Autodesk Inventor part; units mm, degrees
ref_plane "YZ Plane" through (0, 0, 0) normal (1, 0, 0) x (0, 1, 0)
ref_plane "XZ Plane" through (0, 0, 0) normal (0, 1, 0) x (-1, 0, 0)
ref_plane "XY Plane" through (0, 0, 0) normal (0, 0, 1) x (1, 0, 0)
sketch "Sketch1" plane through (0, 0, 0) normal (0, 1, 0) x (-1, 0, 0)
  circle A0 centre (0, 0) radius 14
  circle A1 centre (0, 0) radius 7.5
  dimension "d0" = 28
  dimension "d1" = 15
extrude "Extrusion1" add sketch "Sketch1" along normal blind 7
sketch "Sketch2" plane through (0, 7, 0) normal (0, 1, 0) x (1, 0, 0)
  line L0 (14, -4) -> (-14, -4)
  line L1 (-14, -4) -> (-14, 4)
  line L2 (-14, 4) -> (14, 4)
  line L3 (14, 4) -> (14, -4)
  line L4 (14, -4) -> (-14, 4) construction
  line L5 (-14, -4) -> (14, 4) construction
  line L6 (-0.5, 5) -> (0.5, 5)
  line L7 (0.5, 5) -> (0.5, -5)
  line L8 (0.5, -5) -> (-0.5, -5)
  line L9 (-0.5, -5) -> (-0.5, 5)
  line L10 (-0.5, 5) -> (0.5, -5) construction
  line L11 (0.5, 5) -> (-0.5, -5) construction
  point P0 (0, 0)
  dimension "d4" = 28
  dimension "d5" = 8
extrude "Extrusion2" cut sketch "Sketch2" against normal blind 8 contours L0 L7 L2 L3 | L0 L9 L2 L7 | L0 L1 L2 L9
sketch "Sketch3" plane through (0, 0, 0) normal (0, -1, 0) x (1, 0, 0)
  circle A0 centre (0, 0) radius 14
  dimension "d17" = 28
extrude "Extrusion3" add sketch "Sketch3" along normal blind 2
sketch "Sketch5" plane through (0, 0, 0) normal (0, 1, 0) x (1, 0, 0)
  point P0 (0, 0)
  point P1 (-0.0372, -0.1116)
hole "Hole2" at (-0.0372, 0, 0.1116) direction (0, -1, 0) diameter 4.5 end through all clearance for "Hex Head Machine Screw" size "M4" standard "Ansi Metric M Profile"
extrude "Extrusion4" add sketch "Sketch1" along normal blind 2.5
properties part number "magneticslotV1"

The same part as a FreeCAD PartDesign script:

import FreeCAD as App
import Part
import Sketcher


def add_polygon(sketch, points):
    """Adds a closed chain of lines whose ends are joined by coincident constraints."""
    first, n = sketch.GeometryCount, len(points)
    for a, b in zip(points, points[1:] + points[:1]):
        sketch.addGeometry(Part.LineSegment(App.Vector(*a, 0), App.Vector(*b, 0)), False)
    for i in range(n):
        sketch.addConstraint(Sketcher.Constraint("Coincident", first + i, 2, first + (i + 1) % n, 1))

doc = App.newDocument("Part")
body = doc.addObject("PartDesign::Body", "Body")
body.AllowCompound = True

# Sketch on XZ plane
sketch1 = body.newObject("Sketcher::SketchObject", "Sketch")
sketch1.AttachmentSupport = (doc.getObject("XZ_Plane"), [""])
sketch1.MapMode = "FlatFace"
sketch1.addGeometry([
    Part.Circle(App.Vector(0, 0, 0), App.Vector(0, 0, 1), 14),
    Part.Circle(App.Vector(0, 0, 0), App.Vector(0, 0, 1), 8),
], False)
sketch1.addConstraint([
    Sketcher.Constraint("Coincident", 0, 3, -1, 1),
    Sketcher.Constraint("Coincident", 1, 3, -1, 1),
    Sketcher.Constraint("Diameter", 0, 28.0),
    Sketcher.Constraint("Diameter", 1, 15.0),
])
pad1 = body.newObject("PartDesign::Pad", "Pad")
pad1.Profile = sketch1
pad1.Length = 7
pad1.Reversed = True

# Sketch on XZ plane
sketch2 = body.newObject("Sketcher::SketchObject", "Sketch001")
sketch2.AttachmentSupport = (doc.getObject("XZ_Plane"), [""])
sketch2.MapMode = "FlatFace"
sketch2.AttachmentOffset = App.Placement(App.Vector(0, 0, -7), App.Rotation())
add_polygon(sketch2, [(14, 4), (14, -4), (-14, -4), (-14, 4)])  # lines 0-3
sketch2.addConstraint([
    Sketcher.Constraint("Vertical", 0),
    Sketcher.Constraint("Horizontal", 1),
    Sketcher.Constraint("Vertical", 2),
    Sketcher.Constraint("Horizontal", 3),
    Sketcher.Constraint("Symmetric", 0, 2, 2, 2, -1, 1),
    Sketcher.Constraint("DistanceX", 1, 2, 1, 1, 28.0),
    Sketcher.Constraint("DistanceY", 0, 2, 0, 1, 8.0),
])
pocket1 = body.newObject("PartDesign::Pocket", "Pocket")
pocket1.Profile = sketch2
pocket1.Length = 8
pocket1.Reversed = True

# Sketch on XZ plane
sketch3 = body.newObject("Sketcher::SketchObject", "Sketch002")
sketch3.AttachmentSupport = (doc.getObject("XZ_Plane"), [""])
sketch3.MapMode = "FlatFace"
sketch3.addGeometry(Part.Circle(App.Vector(0, 0, 0), App.Vector(0, 0, 1), 14), False)
sketch3.addConstraint([
    Sketcher.Constraint("Coincident", 0, 3, -1, 1),
    Sketcher.Constraint("Diameter", 0, 28.0),
])
pad2 = body.newObject("PartDesign::Pad", "Pad001")
pad2.Profile = sketch3
pad2.Length = 2

# Sketch on XZ plane
sketch4 = body.newObject("Sketcher::SketchObject", "Sketch003")
sketch4.AttachmentSupport = (doc.getObject("XZ_Plane"), [""])
sketch4.MapMode = "FlatFace"
sketch4.addGeometry(Part.Circle(App.Vector(0, 0.1, 0), App.Vector(0, 0, 1), 2.2), False)
sketch4.addConstraint([
    Sketcher.Constraint("Diameter", 0, 4.5),
    Sketcher.Constraint("DistanceX", 0, 3, -1, 1, 0.0372),
    Sketcher.Constraint("DistanceY", -1, 1, 0, 3, 0.1116),
])
doc.recompute()
hole = body.newObject("PartDesign::Hole", "Hole")
hole.Profile = sketch4
hole.ThreadType = "None"
hole.Diameter = 4.5
hole.DepthType = "ThroughAll"
hole.Reversed = True

# Sketch on XZ plane
sketch5 = body.newObject("Sketcher::SketchObject", "Sketch004")
sketch5.AttachmentSupport = (doc.getObject("XZ_Plane"), [""])
sketch5.MapMode = "FlatFace"
sketch5.addGeometry([
    Part.Circle(App.Vector(0, 0, 0), App.Vector(0, 0, 1), 14),
    Part.Circle(App.Vector(0, 0, 0), App.Vector(0, 0, 1), 8),
], False)
sketch5.addConstraint([
    Sketcher.Constraint("Coincident", 0, 3, -1, 1),
    Sketcher.Constraint("Coincident", 1, 3, -1, 1),
    Sketcher.Constraint("Diameter", 0, 28.0),
    Sketcher.Constraint("Diameter", 1, 15.0),
])
pad3 = body.newObject("PartDesign::Pad", "Pad002")
pad3.Profile = sketch5
pad3.Length = 2.5
pad3.Reversed = True

doc.recompute()
